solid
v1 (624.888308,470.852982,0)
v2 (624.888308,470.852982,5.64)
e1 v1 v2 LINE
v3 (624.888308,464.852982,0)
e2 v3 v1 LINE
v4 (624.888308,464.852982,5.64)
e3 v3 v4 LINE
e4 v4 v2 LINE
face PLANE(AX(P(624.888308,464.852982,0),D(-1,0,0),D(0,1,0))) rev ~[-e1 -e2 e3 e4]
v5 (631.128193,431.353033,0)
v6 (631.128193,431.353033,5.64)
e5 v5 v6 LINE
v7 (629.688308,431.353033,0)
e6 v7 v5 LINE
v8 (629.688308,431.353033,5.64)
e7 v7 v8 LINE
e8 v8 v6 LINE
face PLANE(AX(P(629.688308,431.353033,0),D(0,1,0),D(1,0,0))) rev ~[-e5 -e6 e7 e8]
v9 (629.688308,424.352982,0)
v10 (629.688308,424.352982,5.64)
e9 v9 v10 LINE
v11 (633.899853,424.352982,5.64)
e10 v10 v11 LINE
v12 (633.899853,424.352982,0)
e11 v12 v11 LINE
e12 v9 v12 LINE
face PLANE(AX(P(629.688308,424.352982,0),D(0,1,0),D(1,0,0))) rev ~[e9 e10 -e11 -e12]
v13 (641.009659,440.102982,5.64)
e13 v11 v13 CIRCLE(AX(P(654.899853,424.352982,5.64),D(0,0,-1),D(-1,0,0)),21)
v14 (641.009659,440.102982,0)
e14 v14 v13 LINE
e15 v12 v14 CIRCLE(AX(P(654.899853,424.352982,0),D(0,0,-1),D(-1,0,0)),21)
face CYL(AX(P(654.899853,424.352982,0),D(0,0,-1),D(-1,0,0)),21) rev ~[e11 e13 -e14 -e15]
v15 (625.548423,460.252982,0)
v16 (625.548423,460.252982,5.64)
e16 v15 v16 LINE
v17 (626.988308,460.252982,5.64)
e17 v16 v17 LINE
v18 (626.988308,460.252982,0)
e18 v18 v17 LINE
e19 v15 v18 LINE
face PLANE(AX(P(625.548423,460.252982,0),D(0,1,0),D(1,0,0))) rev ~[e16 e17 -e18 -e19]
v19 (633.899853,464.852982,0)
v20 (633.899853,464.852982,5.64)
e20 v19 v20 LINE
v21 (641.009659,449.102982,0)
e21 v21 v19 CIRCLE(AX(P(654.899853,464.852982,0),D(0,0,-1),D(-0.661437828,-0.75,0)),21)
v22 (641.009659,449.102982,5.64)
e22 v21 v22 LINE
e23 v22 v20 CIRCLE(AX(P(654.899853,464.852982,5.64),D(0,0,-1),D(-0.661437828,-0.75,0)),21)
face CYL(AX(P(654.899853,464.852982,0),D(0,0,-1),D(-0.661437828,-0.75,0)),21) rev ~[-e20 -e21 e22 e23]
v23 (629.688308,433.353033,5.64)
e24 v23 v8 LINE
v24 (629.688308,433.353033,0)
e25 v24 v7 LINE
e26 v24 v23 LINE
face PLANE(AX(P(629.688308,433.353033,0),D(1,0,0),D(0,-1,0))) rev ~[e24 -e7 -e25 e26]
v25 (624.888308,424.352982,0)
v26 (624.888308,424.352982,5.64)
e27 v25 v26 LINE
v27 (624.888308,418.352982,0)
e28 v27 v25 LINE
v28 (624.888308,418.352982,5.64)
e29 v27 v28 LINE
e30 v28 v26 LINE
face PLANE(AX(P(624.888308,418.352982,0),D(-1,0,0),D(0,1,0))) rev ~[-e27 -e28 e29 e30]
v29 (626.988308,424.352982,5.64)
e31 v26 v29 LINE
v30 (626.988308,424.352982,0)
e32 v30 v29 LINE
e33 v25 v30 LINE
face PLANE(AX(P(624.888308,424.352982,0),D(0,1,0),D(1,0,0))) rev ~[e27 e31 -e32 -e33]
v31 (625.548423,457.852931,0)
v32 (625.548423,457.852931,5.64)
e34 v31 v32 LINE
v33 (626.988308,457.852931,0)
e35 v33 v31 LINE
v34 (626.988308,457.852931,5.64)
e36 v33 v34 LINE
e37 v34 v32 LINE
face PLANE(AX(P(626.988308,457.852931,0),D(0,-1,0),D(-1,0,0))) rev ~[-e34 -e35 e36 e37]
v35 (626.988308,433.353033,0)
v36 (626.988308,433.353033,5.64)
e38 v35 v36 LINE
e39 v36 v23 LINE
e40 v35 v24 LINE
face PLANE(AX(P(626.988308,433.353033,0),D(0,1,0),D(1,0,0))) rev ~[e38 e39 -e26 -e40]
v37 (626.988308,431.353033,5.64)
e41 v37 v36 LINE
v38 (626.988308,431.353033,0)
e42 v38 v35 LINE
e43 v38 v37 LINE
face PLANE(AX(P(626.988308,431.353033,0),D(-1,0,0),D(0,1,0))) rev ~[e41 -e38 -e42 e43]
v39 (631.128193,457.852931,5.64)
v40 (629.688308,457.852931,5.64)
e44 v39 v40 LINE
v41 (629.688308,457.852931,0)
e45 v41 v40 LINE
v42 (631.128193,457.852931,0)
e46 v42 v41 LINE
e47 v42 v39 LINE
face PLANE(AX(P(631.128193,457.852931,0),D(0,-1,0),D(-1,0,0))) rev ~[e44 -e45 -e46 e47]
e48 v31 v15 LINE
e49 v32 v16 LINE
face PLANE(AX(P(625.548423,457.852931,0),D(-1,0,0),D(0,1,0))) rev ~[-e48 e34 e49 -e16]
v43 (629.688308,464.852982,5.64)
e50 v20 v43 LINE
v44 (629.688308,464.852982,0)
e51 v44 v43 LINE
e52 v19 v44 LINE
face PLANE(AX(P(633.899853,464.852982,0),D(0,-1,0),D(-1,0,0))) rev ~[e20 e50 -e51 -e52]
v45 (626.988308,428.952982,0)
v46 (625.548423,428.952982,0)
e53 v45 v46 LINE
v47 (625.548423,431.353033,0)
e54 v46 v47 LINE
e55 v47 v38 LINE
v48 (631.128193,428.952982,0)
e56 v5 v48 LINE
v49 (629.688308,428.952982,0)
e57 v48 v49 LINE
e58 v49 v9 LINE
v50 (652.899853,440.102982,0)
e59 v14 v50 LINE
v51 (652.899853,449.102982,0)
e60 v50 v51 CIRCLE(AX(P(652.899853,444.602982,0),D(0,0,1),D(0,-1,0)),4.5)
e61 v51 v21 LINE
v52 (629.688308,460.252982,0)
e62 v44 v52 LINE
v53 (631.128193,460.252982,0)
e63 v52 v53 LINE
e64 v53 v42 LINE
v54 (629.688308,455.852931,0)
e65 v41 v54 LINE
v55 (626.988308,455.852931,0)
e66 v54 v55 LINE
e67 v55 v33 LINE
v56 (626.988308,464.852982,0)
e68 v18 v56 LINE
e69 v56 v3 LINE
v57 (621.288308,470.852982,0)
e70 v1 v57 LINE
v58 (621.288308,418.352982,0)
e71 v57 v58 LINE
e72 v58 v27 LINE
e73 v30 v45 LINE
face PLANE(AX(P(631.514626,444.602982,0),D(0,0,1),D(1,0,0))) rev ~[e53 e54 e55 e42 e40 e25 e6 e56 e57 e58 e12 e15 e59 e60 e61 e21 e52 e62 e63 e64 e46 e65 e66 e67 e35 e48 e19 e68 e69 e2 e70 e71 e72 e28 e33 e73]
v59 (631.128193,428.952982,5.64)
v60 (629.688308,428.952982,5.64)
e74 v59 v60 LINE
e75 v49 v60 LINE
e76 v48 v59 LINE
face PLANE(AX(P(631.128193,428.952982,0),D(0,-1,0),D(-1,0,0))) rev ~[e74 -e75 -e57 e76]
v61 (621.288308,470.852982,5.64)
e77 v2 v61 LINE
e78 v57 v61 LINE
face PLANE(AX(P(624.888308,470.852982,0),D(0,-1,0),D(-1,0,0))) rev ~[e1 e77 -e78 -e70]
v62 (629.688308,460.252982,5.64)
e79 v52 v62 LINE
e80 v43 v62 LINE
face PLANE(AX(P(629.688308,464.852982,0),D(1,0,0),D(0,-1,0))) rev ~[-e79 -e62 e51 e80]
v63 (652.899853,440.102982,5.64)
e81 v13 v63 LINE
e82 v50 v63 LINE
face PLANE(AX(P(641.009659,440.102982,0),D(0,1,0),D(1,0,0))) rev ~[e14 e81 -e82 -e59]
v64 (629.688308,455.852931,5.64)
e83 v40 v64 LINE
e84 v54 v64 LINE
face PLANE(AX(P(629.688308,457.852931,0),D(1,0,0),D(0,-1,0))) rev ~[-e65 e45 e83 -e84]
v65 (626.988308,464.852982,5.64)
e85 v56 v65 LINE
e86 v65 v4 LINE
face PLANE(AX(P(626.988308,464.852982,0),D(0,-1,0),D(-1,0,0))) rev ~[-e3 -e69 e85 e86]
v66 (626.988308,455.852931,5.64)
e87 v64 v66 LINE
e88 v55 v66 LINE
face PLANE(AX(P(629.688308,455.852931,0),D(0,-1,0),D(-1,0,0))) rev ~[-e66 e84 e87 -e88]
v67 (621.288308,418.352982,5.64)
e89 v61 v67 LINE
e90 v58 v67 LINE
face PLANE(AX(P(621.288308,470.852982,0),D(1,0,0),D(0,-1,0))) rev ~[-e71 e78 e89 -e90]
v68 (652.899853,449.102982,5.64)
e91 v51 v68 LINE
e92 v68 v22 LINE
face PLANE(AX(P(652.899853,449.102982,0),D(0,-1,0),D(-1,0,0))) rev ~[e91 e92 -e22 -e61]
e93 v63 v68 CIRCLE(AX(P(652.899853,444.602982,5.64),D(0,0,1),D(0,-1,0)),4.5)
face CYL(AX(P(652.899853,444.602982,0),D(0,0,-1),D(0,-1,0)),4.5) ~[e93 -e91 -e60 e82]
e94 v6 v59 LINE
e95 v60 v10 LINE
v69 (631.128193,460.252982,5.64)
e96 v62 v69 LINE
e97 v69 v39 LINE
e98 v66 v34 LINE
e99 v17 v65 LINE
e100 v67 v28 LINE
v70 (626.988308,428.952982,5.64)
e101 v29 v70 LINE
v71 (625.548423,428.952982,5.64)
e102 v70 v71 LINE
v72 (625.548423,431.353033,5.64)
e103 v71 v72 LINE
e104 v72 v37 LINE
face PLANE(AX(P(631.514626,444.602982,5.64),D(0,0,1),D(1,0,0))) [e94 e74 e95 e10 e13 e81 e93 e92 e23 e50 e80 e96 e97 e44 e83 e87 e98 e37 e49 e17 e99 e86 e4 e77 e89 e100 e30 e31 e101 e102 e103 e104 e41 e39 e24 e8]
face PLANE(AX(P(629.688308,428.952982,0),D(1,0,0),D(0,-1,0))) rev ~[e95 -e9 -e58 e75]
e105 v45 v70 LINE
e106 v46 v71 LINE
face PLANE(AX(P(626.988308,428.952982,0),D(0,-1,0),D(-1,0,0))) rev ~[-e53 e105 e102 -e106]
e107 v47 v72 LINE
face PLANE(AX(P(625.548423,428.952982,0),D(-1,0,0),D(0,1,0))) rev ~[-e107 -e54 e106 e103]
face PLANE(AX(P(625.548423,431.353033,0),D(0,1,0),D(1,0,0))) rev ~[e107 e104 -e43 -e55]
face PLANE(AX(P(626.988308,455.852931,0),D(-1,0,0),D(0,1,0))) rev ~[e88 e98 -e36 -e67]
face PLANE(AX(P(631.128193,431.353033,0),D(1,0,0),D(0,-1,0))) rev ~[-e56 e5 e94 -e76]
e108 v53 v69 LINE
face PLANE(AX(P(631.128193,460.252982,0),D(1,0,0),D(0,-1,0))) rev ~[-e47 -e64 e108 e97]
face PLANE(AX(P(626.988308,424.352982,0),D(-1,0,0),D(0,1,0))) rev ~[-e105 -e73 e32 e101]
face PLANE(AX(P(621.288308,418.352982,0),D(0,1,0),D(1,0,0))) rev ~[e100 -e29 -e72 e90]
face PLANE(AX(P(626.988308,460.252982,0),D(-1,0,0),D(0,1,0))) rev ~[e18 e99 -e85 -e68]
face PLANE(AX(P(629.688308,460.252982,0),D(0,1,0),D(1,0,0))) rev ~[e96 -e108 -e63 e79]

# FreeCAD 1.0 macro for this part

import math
import FreeCAD as App
import Part
import Sketcher
Q = App.Units.Quantity

doc = App.newDocument("Part")
body = doc.addObject("PartDesign::Body", "Body")

# Sketch on XY plane
sketch1 = body.newObject("Sketcher::SketchObject", "Sketch")
sketch1.AttachmentSupport = (doc.getObject("XY_Plane"), [""])
sketch1.MapMode = "FlatFace"
sketch1.addGeometry([
    Part.LineSegment(App.Vector(652.899853, 449.102982, 0), App.Vector(641.009659, 449.102982, 0)),  # 0
    Part.ArcOfCircle(Part.Circle(App.Vector(654.899853, 464.852982, 0), App.Vector(0, 0, 1), 21), math.radians(180), math.radians(228.590378)),  # 1
    Part.LineSegment(App.Vector(633.899853, 464.852982, 0), App.Vector(629.688308, 464.852982, 0)),  # 2
    Part.LineSegment(App.Vector(629.688308, 464.852982, 0), App.Vector(629.688308, 460.252982, 0)),  # 3
    Part.LineSegment(App.Vector(629.688308, 460.252982, 0), App.Vector(631.128193, 460.252982, 0)),  # 4
    Part.LineSegment(App.Vector(631.128193, 460.252982, 0), App.Vector(631.128193, 457.852931, 0)),  # 5
    Part.LineSegment(App.Vector(631.128193, 457.852931, 0), App.Vector(629.688308, 457.852931, 0)),  # 6
    Part.LineSegment(App.Vector(629.688308, 457.852931, 0), App.Vector(629.688308, 455.852931, 0)),  # 7
    Part.LineSegment(App.Vector(629.688308, 455.852931, 0), App.Vector(626.988308, 455.852931, 0)),  # 8
    Part.LineSegment(App.Vector(626.988308, 455.852931, 0), App.Vector(626.988308, 457.852931, 0)),  # 9
    Part.LineSegment(App.Vector(626.988308, 457.852931, 0), App.Vector(625.548423, 457.852931, 0)),  # 10
    Part.LineSegment(App.Vector(625.548423, 457.852931, 0), App.Vector(625.548423, 460.252982, 0)),  # 11
    Part.LineSegment(App.Vector(625.548423, 460.252982, 0), App.Vector(626.988308, 460.252982, 0)),  # 12
    Part.LineSegment(App.Vector(626.988308, 460.252982, 0), App.Vector(626.988308, 464.852982, 0)),  # 13
    Part.LineSegment(App.Vector(626.988308, 464.852982, 0), App.Vector(624.888308, 464.852982, 0)),  # 14
    Part.LineSegment(App.Vector(624.888308, 464.852982, 0), App.Vector(624.888308, 470.852982, 0)),  # 15
    Part.LineSegment(App.Vector(624.888308, 470.852982, 0), App.Vector(621.288308, 470.852982, 0)),  # 16
    Part.LineSegment(App.Vector(621.288308, 470.852982, 0), App.Vector(621.288308, 418.352982, 0)),  # 17
    Part.LineSegment(App.Vector(621.288308, 418.352982, 0), App.Vector(624.888308, 418.352982, 0)),  # 18
    Part.LineSegment(App.Vector(624.888308, 418.352982, 0), App.Vector(624.888308, 424.352982, 0)),  # 19
    Part.LineSegment(App.Vector(624.888308, 424.352982, 0), App.Vector(626.988308, 424.352982, 0)),  # 20
    Part.LineSegment(App.Vector(626.988308, 424.352982, 0), App.Vector(626.988308, 428.952982, 0)),  # 21
    Part.LineSegment(App.Vector(626.988308, 428.952982, 0), App.Vector(625.548423, 428.952982, 0)),  # 22
    Part.LineSegment(App.Vector(625.548423, 428.952982, 0), App.Vector(625.548423, 431.353033, 0)),  # 23
    Part.LineSegment(App.Vector(625.548423, 431.353033, 0), App.Vector(626.988308, 431.353033, 0)),  # 24
    Part.LineSegment(App.Vector(626.988308, 431.353033, 0), App.Vector(626.988308, 433.353033, 0)),  # 25
    Part.LineSegment(App.Vector(626.988308, 433.353033, 0), App.Vector(629.688308, 433.353033, 0)),  # 26
    Part.LineSegment(App.Vector(629.688308, 433.353033, 0), App.Vector(629.688308, 431.353033, 0)),  # 27
    Part.LineSegment(App.Vector(629.688308, 431.353033, 0), App.Vector(631.128193, 431.353033, 0)),  # 28
    Part.LineSegment(App.Vector(631.128193, 431.353033, 0), App.Vector(631.128193, 428.952982, 0)),  # 29
    Part.LineSegment(App.Vector(631.128193, 428.952982, 0), App.Vector(629.688308, 428.952982, 0)),  # 30
    Part.LineSegment(App.Vector(629.688308, 428.952982, 0), App.Vector(629.688308, 424.352982, 0)),  # 31
    Part.LineSegment(App.Vector(629.688308, 424.352982, 0), App.Vector(633.899853, 424.352982, 0)),  # 32
    Part.ArcOfCircle(Part.Circle(App.Vector(654.899853, 424.352982, 0), App.Vector(0, 0, 1), 21), math.radians(131.409622), math.radians(180)),  # 33
    Part.LineSegment(App.Vector(641.009659, 440.102982, 0), App.Vector(652.899853, 440.102982, 0)),  # 34
    Part.ArcOfCircle(Part.Circle(App.Vector(652.899853, 444.602982, 0), App.Vector(0, 0, 1), 4.5), math.radians(-90), math.radians(90)),  # 35
], False)
sketch1.addConstraint([
    Sketcher.Constraint("Coincident", 0, 2, 1, 2),
    Sketcher.Constraint("Coincident", 1, 1, 2, 1),
    Sketcher.Constraint("Coincident", 2, 2, 3, 1),
    Sketcher.Constraint("Coincident", 3, 2, 4, 1),
    Sketcher.Constraint("Coincident", 4, 2, 5, 1),
    Sketcher.Constraint("Coincident", 5, 2, 6, 1),
    Sketcher.Constraint("Coincident", 6, 2, 7, 1),
    Sketcher.Constraint("Coincident", 7, 2, 8, 1),
    Sketcher.Constraint("Coincident", 8, 2, 9, 1),
    Sketcher.Constraint("Coincident", 9, 2, 10, 1),
    Sketcher.Constraint("Coincident", 10, 2, 11, 1),
    Sketcher.Constraint("Coincident", 11, 2, 12, 1),
    Sketcher.Constraint("Coincident", 12, 2, 13, 1),
    Sketcher.Constraint("Coincident", 13, 2, 14, 1),
    Sketcher.Constraint("Coincident", 14, 2, 15, 1),
    Sketcher.Constraint("Coincident", 15, 2, 16, 1),
    Sketcher.Constraint("Coincident", 16, 2, 17, 1),
    Sketcher.Constraint("Coincident", 17, 2, 18, 1),
    Sketcher.Constraint("Coincident", 18, 2, 19, 1),
    Sketcher.Constraint("Coincident", 19, 2, 20, 1),
    Sketcher.Constraint("Coincident", 20, 2, 21, 1),
    Sketcher.Constraint("Coincident", 21, 2, 22, 1),
    Sketcher.Constraint("Coincident", 22, 2, 23, 1),
    Sketcher.Constraint("Coincident", 23, 2, 24, 1),
    Sketcher.Constraint("Coincident", 24, 2, 25, 1),
    Sketcher.Constraint("Coincident", 25, 2, 26, 1),
    Sketcher.Constraint("Coincident", 26, 2, 27, 1),
    Sketcher.Constraint("Coincident", 27, 2, 28, 1),
    Sketcher.Constraint("Coincident", 28, 2, 29, 1),
    Sketcher.Constraint("Coincident", 29, 2, 30, 1),
    Sketcher.Constraint("Coincident", 30, 2, 31, 1),
    Sketcher.Constraint("Coincident", 31, 2, 32, 1),
    Sketcher.Constraint("Coincident", 32, 2, 33, 2),
    Sketcher.Constraint("Coincident", 33, 1, 34, 1),
    Sketcher.Constraint("Tangent", 34, 2, 35, 1),
    Sketcher.Constraint("Tangent", 35, 2, 0, 1),
    Sketcher.Constraint("Horizontal", 0),
    Sketcher.Constraint("Horizontal", 2),
    Sketcher.Constraint("Vertical", 3),
    Sketcher.Constraint("Horizontal", 4),
    Sketcher.Constraint("Vertical", 5),
    Sketcher.Constraint("Horizontal", 6),
    Sketcher.Constraint("Vertical", 7),
    Sketcher.Constraint("Horizontal", 8),
    Sketcher.Constraint("Vertical", 9),
    Sketcher.Constraint("Horizontal", 10),
    Sketcher.Constraint("Vertical", 11),
    Sketcher.Constraint("Horizontal", 12),
    Sketcher.Constraint("Vertical", 13),
    Sketcher.Constraint("Horizontal", 14),
    Sketcher.Constraint("Vertical", 15),
    Sketcher.Constraint("Horizontal", 16),
    Sketcher.Constraint("Vertical", 17),
    Sketcher.Constraint("Horizontal", 18),
    Sketcher.Constraint("Vertical", 19),
    Sketcher.Constraint("Horizontal", 20),
    Sketcher.Constraint("Vertical", 21),
    Sketcher.Constraint("Horizontal", 22),
    Sketcher.Constraint("Vertical", 23),
    Sketcher.Constraint("Horizontal", 24),
    Sketcher.Constraint("Vertical", 25),
    Sketcher.Constraint("Horizontal", 26),
    Sketcher.Constraint("Vertical", 27),
    Sketcher.Constraint("Horizontal", 28),
    Sketcher.Constraint("Vertical", 29),
    Sketcher.Constraint("Horizontal", 30),
    Sketcher.Constraint("Vertical", 31),
    Sketcher.Constraint("Horizontal", 32),
    Sketcher.Constraint("Horizontal", 34),
    Sketcher.Constraint("Equal", 1, 33),
    Sketcher.Constraint("Horizontal", 6, 2, 9, 2),
    Sketcher.Constraint("Horizontal", 4, 2, 11, 2),
    Sketcher.Constraint("Horizontal", 2, 2, 13, 2),
    Sketcher.Constraint("Horizontal", 33, 3, 19, 2),
    Sketcher.Constraint("Horizontal", 24, 2, 27, 2),
    Sketcher.Constraint("Horizontal", 22, 2, 29, 2),
    Sketcher.Constraint("Horizontal", 20, 2, 31, 2),
    Sketcher.Constraint("Vertical", 1, 3, 33, 3),
    Sketcher.Constraint("Vertical", 3, 2, 6, 2),
    Sketcher.Constraint("Vertical", 9, 2, 12, 2),
    Sketcher.Constraint("Vertical", 15, 2, 18, 2),
    Sketcher.Constraint("Vertical", 13, 2, 20, 2),
    Sketcher.Constraint("Vertical", 11, 2, 22, 2),
    Sketcher.Constraint("Vertical", 21, 2, 24, 2),
    Sketcher.Constraint("Vertical", 7, 2, 26, 2),
    Sketcher.Constraint("Vertical", 5, 2, 28, 2),
    Sketcher.Constraint("Vertical", 27, 2, 30, 2),
    Sketcher.Constraint("Vertical", 0, 2, 33, 1),
    Sketcher.Constraint("Equal", 6, 10),
    Sketcher.Constraint("Equal", 15, 19),
    Sketcher.Constraint("Equal", 13, 21),
    Sketcher.Constraint("Equal", 11, 23),
    Sketcher.Constraint("Equal", 9, 25),
    Sketcher.Constraint("Radius", 1, Q("21 mm")),
    Sketcher.Constraint("Radius", 35, Q("4.5 mm")),
    Sketcher.Constraint("DistanceY", 7, 2, 7, 1, Q("2 mm")),
    Sketcher.Constraint("DistanceY", 15, 1, 15, 2, Q("6 mm")),
    Sketcher.Constraint("DistanceX", 8, 2, 8, 1, Q("2.7 mm")),
    Sketcher.Constraint("DistanceX", 14, 2, 14, 1, Q("2.1 mm")),
    Sketcher.Constraint("DistanceX", 16, 2, 16, 1, Q("3.6 mm")),
    Sketcher.Constraint("DistanceY", 3, 2, 3, 1, Q("4.6 mm")),
    Sketcher.Constraint("DistanceY", 17, 2, 17, 1, Q("52.5 mm")),
    Sketcher.Constraint("DistanceX", 35, 3, 1, 3, Q("2 mm")),
    Sketcher.Constraint("DistanceY", 33, 3, 1, 3, Q("40.5 mm")),
    Sketcher.Constraint("DistanceY", 5, 2, 5, 1, Q("2.400051 mm")),
    Sketcher.Constraint("DistanceX", 2, 2, 2, 1, Q("4.211545 mm")),
    Sketcher.Constraint("DistanceX", 4, 1, 4, 2, Q("1.439885 mm")),
    Sketcher.Constraint("DistanceY", -1, 1, 1, 3, Q("464.852982 mm")),
    Sketcher.Constraint("DistanceX", -1, 1, 0, 2, Q("641.009659 mm")),
])
pad1 = body.newObject("PartDesign::Pad", "Pad")
pad1.Profile = sketch1
pad1.Length = 5.64

doc.recompute()
